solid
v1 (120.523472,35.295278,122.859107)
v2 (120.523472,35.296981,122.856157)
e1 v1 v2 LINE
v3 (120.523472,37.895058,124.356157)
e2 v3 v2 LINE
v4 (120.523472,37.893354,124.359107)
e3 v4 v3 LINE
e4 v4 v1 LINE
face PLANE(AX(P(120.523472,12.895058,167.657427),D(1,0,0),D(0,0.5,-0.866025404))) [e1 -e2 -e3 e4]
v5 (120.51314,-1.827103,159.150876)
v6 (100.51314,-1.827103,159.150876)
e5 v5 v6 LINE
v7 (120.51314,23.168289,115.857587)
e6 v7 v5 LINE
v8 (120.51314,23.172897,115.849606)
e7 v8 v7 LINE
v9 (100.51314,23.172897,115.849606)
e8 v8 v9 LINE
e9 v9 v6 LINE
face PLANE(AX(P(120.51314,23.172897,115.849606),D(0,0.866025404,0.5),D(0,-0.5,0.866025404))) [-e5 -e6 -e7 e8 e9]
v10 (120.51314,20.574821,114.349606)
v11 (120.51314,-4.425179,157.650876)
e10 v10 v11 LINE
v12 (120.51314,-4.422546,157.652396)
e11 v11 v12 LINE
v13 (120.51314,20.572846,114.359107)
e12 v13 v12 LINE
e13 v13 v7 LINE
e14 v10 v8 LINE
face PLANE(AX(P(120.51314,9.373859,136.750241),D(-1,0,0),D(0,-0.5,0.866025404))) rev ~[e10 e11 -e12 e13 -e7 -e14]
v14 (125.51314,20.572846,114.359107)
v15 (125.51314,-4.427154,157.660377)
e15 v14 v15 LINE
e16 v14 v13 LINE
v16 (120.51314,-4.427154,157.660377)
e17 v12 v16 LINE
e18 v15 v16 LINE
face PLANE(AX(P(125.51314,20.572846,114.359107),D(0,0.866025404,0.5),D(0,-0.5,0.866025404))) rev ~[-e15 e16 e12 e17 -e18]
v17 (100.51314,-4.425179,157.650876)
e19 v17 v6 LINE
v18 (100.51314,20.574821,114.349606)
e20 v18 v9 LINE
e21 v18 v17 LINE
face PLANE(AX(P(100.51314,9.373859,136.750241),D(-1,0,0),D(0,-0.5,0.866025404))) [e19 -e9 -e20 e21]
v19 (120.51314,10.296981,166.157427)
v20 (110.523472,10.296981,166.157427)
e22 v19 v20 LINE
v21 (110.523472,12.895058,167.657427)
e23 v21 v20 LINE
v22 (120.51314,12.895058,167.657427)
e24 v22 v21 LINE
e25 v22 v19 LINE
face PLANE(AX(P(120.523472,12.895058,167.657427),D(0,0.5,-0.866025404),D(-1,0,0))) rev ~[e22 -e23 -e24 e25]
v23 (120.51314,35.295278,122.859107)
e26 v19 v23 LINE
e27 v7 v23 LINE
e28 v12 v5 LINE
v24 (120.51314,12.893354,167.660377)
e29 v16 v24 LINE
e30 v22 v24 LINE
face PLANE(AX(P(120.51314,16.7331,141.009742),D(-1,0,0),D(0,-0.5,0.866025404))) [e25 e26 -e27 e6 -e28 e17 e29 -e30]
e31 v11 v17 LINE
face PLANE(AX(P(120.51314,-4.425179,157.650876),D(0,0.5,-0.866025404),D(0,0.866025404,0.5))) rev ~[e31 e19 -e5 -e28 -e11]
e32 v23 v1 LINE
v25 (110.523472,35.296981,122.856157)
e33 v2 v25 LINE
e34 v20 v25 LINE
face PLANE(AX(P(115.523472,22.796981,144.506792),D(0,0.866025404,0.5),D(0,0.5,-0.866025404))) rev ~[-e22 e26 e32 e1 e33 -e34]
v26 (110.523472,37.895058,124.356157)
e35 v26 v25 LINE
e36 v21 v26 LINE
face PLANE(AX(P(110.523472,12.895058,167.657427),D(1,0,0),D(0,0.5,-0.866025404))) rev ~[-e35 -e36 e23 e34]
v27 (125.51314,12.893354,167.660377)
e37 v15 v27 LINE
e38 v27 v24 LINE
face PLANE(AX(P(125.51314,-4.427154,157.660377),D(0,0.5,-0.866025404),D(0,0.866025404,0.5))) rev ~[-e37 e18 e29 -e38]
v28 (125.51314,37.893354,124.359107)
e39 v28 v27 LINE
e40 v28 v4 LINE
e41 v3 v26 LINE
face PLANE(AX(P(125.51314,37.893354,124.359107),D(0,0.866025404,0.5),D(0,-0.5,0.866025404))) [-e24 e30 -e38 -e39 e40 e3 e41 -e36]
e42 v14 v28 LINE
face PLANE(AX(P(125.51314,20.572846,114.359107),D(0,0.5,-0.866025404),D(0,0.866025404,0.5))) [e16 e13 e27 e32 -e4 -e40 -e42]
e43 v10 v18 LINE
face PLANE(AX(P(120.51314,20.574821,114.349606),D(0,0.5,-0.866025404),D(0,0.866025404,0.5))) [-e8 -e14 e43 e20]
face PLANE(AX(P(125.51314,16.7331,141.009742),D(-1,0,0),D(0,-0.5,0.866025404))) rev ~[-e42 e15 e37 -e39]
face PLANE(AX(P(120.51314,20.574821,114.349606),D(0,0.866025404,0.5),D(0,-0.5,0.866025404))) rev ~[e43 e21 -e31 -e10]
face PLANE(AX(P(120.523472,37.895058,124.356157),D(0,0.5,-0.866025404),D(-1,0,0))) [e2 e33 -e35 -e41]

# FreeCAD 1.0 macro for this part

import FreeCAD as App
import Part
import Sketcher
from FreeCAD import Vector


def add_polygon(sketch, points):
    """Adds a closed chain of lines whose ends are joined by coincident constraints."""
    first, n = sketch.GeometryCount, len(points)
    for a, b in zip(points, points[1:] + points[:1]):
        sketch.addGeometry(Part.LineSegment(App.Vector(*a, 0), App.Vector(*b, 0)), False)
    for i in range(n):
        sketch.addConstraint(Sketcher.Constraint("Coincident", first + i, 2, first + (i + 1) % n, 1))

doc = App.newDocument("Part")
body = doc.addObject("PartDesign::Body", "Body")

sketch1 = doc.addObject("Sketcher::SketchObject", "Sketch")
body.addObject(sketch1)
sketch1.AttachmentSupport = (doc.XY_Plane, [""])
sketch1.MapMode = "FlatFace"
add_polygon(sketch1, [(160, -114), (160, -134), (210, -134), (210, -114)])
sketch1.addConstraint([
    Sketcher.Constraint("Vertical", 0),
    Sketcher.Constraint("Horizontal", 1),
    Sketcher.Constraint("Vertical", 2),
    Sketcher.Constraint("Horizontal", 3),
    Sketcher.Constraint("DistanceX", 1, 1, 1, 2, 50.0),
    Sketcher.Constraint("DistanceY", 0, 2, 0, 1, 20.0),
    Sketcher.Constraint("DistanceY", 0, 2, -1, 1, 133.914059),
    Sketcher.Constraint("DistanceX", -1, 1, 0, 2, 159.845276),
])
pad1 = doc.addObject("PartDesign::Pad", "Pad")
body.addObject(pad1)
pad1.Profile = sketch1
pad1.Length = 5

sketch2 = doc.addObject("Sketcher::SketchObject", "Sketch001")
body.addObject(sketch2)
sketch2.AttachmentSupport = (doc.XY_Plane, [""])
sketch2.MapMode = "FlatFace"
sketch2.AttachmentOffset = App.Placement(Vector(0, 0, 5), App.Rotation())
add_polygon(sketch2, [(159.8, -130.9), (159.8, -133.9), (209.8, -133.9), (209.8, -130.9)])
sketch2.addConstraint([
    Sketcher.Constraint("Vertical", 0),
    Sketcher.Constraint("Horizontal", 1),
    Sketcher.Constraint("Vertical", 2),
    Sketcher.Constraint("Horizontal", 3),
    Sketcher.Constraint("DistanceX", 1, 1, 1, 2, 50.0),
    Sketcher.Constraint("DistanceY", 0, 2, 0, 1, 3.0),
    Sketcher.Constraint("DistanceY", 0, 2, -1, 1, 133.917099),
    Sketcher.Constraint("DistanceX", -1, 1, 0, 2, 159.83606),
])
pad2 = doc.addObject("PartDesign::Pad", "Pad001")
body.addObject(pad2)
pad2.Profile = sketch2
pad2.Length = 20

sketch3 = doc.addObject("Sketcher::SketchObject", "Sketch002")
body.addObject(sketch3)
sketch3.AttachmentSupport = (doc.XZ_Plane, [""])
sketch3.MapMode = "FlatFace"
sketch3.AttachmentOffset = App.Placement(Vector(0, 0, 113.914059), App.Rotation())
add_polygon(sketch3, [(210, 15), (210, 5), (160, 5), (160, 15)])
sketch3.addConstraint([
    Sketcher.Constraint("Vertical", 0),
    Sketcher.Constraint("Horizontal", 1),
    Sketcher.Constraint("Vertical", 2),
    Sketcher.Constraint("Horizontal", 3),
    Sketcher.Constraint("DistanceX", 1, 2, 1, 1, 50.0),
    Sketcher.Constraint("DistanceY", 0, 2, 0, 1, 10.0),
    Sketcher.Constraint("DistanceX", -1, 1, 0, 2, 209.841869),
    Sketcher.Constraint("DistanceY", -1, 1, 0, 2, 4.989668),
])
pad3 = doc.addObject("PartDesign::Pad", "Pad002")
body.addObject(pad3)
pad3.Profile = sketch3
pad3.Length = 3
body2 = doc.addObject("PartDesign::Body", "Body001")
doc.recompute()

body.Placement = App.Placement(Vector(0, 0, 0), App.Rotation(Vector(1, 0, 0), 90))
boolean = doc.addObject("PartDesign::Boolean", "Boolean")
body2.addObject(boolean)
boolean.Type = "Fuse"
boolean.addObjects([body])
body3 = doc.addObject("PartDesign::Body", "Body002")
doc.recompute()

body2.Placement = App.Placement(Vector(0, 0, 0), App.Rotation(Vector(0, 1, 0), 300))
boolean2 = doc.addObject("PartDesign::Boolean", "Boolean001")
body3.addObject(boolean2)
boolean2.Type = "Fuse"
boolean2.addObjects([body2])
body4 = doc.addObject("PartDesign::Body", "Body003")
doc.recompute()

body3.Placement = App.Placement(Vector(125.51314, 216.468461, 42.886067), App.Rotation(Vector(0, 0, 1), 270))
boolean3 = doc.addObject("PartDesign::Boolean", "Boolean002")
body4.addObject(boolean3)
boolean3.Type = "Fuse"
boolean3.addObjects([body3])

doc.recompute()
